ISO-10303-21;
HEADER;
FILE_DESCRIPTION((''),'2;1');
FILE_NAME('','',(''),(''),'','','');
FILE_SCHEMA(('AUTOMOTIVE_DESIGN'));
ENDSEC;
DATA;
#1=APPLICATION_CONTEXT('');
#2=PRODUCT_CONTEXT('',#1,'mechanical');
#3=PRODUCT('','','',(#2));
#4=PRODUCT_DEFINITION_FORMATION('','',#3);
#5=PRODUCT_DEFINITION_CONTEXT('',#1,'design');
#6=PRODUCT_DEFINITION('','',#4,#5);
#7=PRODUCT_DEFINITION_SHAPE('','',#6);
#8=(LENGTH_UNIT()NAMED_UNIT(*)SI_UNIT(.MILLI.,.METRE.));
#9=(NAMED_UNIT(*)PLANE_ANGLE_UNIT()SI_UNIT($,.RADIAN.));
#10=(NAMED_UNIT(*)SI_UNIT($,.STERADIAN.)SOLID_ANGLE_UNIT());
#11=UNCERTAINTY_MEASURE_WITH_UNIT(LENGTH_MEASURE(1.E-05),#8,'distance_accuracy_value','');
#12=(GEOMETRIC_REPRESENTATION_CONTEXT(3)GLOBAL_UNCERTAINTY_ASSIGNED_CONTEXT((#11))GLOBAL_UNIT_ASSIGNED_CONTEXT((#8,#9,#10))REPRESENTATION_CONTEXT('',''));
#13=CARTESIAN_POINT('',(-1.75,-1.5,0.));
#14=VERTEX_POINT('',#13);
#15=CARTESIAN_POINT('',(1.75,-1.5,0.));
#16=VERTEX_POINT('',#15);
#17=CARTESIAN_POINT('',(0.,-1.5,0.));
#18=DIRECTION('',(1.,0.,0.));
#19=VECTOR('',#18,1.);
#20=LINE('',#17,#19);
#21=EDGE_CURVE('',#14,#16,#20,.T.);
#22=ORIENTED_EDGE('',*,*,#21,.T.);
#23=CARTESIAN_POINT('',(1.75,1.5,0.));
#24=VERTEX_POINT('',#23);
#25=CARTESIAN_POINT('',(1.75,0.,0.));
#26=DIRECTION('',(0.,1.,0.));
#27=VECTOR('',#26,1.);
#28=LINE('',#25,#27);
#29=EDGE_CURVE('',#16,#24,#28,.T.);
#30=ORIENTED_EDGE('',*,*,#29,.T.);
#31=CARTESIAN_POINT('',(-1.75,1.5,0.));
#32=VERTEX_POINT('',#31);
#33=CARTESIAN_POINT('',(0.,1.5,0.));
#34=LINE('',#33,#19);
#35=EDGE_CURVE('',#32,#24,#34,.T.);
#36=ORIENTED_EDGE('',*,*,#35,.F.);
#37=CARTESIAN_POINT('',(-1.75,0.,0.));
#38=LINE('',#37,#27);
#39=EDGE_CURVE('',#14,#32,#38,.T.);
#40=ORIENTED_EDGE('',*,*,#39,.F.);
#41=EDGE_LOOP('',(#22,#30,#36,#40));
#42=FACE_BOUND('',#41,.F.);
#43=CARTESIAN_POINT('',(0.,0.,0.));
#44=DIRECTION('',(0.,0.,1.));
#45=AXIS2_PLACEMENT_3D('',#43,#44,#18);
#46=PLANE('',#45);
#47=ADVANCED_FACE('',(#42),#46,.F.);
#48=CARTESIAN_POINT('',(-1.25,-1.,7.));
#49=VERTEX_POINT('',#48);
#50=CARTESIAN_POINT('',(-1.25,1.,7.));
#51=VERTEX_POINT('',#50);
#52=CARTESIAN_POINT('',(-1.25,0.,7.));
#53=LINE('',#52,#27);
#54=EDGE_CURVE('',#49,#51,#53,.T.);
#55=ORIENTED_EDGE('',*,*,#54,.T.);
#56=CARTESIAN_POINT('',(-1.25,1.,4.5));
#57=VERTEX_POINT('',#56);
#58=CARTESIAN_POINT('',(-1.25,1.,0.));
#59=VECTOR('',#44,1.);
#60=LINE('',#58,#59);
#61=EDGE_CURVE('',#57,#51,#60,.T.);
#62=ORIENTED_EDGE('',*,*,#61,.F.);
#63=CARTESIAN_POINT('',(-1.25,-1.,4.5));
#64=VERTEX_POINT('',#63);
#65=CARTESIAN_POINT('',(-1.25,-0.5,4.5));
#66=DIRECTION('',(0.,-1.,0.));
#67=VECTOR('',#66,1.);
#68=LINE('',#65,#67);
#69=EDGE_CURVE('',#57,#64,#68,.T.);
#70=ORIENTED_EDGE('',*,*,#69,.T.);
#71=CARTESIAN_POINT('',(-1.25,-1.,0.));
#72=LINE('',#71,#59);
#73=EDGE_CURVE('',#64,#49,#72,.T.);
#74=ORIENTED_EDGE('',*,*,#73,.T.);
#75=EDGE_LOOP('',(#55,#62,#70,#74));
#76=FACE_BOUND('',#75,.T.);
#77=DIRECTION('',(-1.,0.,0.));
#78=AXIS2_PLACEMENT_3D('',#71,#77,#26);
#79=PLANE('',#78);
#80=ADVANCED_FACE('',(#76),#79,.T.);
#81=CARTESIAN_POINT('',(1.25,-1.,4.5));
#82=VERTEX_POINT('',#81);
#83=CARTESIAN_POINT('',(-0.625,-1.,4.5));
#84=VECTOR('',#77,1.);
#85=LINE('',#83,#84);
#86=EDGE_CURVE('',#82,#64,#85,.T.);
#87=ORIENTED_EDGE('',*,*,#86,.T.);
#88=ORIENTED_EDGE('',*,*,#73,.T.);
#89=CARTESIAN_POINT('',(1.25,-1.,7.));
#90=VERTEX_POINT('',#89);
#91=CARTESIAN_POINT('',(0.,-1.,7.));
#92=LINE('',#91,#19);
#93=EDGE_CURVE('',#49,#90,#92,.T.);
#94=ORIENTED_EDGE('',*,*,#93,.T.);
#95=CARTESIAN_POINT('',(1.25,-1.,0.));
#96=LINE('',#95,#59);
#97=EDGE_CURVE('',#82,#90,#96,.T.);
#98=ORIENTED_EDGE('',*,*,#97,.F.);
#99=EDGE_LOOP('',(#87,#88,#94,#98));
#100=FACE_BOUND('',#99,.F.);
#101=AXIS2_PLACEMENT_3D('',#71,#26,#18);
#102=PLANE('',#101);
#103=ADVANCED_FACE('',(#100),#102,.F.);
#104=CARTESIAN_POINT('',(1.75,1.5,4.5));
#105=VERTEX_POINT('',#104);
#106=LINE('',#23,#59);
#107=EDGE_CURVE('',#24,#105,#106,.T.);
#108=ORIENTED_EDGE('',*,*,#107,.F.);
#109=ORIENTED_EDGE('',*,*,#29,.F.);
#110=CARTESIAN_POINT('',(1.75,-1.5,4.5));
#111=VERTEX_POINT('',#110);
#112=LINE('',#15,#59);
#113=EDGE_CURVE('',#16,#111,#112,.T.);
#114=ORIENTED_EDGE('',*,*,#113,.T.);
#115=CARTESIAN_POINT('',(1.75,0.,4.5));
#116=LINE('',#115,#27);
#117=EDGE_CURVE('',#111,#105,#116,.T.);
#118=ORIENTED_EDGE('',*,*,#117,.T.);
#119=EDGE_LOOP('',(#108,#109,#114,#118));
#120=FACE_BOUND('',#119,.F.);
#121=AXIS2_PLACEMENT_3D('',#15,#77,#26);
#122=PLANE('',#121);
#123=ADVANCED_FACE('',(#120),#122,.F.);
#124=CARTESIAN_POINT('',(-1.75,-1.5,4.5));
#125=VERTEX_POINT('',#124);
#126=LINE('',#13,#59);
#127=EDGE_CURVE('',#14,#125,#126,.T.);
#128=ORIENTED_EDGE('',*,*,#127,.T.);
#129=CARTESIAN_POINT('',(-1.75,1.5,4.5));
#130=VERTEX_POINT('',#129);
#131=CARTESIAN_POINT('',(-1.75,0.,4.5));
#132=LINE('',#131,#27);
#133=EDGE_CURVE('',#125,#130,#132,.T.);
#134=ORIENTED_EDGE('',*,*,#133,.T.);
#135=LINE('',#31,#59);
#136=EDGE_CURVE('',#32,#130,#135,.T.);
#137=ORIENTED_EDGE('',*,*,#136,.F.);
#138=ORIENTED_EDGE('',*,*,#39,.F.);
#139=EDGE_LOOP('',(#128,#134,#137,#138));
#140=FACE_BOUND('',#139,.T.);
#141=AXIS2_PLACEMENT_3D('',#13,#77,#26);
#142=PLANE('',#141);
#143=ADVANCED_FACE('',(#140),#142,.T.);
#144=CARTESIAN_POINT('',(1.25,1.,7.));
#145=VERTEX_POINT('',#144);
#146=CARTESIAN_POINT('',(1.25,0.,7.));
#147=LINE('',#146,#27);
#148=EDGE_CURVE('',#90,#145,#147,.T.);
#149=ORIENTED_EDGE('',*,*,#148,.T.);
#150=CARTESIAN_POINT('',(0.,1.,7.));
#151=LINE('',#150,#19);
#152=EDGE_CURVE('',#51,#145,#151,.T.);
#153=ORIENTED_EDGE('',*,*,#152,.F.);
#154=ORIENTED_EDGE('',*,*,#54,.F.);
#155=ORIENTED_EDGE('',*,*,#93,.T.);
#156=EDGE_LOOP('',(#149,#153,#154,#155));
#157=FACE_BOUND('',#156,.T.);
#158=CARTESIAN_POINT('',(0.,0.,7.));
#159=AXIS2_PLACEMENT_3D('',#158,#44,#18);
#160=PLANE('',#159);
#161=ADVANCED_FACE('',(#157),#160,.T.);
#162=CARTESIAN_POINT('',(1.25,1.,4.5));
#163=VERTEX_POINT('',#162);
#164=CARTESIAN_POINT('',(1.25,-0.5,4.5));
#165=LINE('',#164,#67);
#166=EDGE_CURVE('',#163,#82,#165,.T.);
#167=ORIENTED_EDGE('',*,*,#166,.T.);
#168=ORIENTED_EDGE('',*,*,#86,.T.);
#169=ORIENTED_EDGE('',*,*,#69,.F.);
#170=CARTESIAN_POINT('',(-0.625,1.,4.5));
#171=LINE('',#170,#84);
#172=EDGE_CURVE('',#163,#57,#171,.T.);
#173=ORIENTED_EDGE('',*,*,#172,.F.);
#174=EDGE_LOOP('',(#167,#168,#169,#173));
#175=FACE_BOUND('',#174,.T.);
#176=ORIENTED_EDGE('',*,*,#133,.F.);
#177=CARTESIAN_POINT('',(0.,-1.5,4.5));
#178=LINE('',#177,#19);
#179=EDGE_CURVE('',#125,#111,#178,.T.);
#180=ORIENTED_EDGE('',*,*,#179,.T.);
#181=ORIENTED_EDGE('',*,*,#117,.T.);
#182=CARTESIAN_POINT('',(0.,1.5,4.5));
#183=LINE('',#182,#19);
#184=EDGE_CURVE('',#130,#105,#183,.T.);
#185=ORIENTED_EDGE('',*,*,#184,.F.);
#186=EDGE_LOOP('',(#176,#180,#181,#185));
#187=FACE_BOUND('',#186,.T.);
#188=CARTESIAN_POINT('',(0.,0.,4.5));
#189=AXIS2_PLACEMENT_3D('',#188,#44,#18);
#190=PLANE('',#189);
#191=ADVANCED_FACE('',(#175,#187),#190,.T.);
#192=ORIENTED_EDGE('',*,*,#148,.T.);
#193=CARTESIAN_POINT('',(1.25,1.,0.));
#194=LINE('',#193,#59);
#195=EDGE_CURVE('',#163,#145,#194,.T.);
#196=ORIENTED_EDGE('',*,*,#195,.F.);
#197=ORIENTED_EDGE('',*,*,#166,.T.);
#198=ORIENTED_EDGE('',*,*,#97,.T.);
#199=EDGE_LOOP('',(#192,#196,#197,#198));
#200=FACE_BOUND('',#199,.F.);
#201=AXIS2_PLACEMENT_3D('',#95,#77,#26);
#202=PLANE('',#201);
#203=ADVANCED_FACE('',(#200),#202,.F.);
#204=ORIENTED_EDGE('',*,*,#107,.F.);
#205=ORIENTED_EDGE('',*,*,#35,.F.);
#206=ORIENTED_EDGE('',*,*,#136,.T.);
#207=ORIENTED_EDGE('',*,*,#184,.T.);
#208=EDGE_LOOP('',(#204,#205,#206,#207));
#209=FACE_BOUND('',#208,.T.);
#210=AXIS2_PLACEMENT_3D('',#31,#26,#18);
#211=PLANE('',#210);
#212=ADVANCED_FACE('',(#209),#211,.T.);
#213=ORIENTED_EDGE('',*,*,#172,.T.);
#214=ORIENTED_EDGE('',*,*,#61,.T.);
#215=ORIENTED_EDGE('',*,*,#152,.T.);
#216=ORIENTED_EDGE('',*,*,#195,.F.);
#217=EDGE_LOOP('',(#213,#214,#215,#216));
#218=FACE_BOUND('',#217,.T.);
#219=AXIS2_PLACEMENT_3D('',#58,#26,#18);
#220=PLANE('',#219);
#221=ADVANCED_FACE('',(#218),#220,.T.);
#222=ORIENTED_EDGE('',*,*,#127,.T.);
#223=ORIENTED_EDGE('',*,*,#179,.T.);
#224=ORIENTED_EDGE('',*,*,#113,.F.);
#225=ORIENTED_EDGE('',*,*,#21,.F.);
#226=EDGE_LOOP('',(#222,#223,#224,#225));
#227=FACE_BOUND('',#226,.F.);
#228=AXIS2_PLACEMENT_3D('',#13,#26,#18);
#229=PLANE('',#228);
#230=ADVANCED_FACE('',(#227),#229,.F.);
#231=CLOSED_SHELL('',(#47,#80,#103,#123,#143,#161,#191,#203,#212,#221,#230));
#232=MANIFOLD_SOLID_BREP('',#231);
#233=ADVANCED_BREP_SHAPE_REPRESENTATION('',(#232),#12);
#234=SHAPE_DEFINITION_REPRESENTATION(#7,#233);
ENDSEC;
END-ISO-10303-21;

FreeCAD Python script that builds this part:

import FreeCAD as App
import Part
import Sketcher

doc = App.newDocument("Part")
body = doc.addObject("PartDesign::Body", "Body")

# Sketch on XY plane
sketch1 = doc.addObject("Sketcher::SketchObject", "Sketch")
body.addObject(sketch1)
sketch1.AttachmentSupport = (doc.XY_Plane, [""])
sketch1.MapMode = "FlatFace"
sketch1.addGeometry(Part.LineSegment(App.Vector(-1.8, 1.5, 0), App.Vector(-1.8, -1.5, 0)), False)
sketch1.addGeometry(Part.LineSegment(App.Vector(-1.8, -1.5, 0), App.Vector(1.8, -1.5, 0)), False)
sketch1.addGeometry(Part.LineSegment(App.Vector(1.8, -1.5, 0), App.Vector(1.8, 1.5, 0)), False)
sketch1.addGeometry(Part.LineSegment(App.Vector(1.8, 1.5, 0), App.Vector(-1.8, 1.5, 0)), False)
sketch1.addConstraint(Sketcher.Constraint("Coincident", 0, 2, 1, 1))
sketch1.addConstraint(Sketcher.Constraint("Coincident", 1, 2, 2, 1))
sketch1.addConstraint(Sketcher.Constraint("Coincident", 2, 2, 3, 1))
sketch1.addConstraint(Sketcher.Constraint("Coincident", 3, 2, 0, 1))
sketch1.addConstraint(Sketcher.Constraint("Vertical", 0))
sketch1.addConstraint(Sketcher.Constraint("Horizontal", 1))
sketch1.addConstraint(Sketcher.Constraint("Vertical", 2))
sketch1.addConstraint(Sketcher.Constraint("Horizontal", 3))
sketch1.addConstraint(Sketcher.Constraint("Symmetric", 0, 2, 2, 2, -1, 1))
sketch1.addConstraint(Sketcher.Constraint("DistanceY", 0, 2, 0, 1, 3.0))
sketch1.addConstraint(Sketcher.Constraint("DistanceX", 1, 1, 1, 2, 3.5))
pad1 = doc.addObject("PartDesign::Pad", "Pad")
body.addObject(pad1)
pad1.Profile = sketch1
pad1.Length = 4.5

# Sketch on XY plane
sketch2 = doc.addObject("Sketcher::SketchObject", "Sketch001")
body.addObject(sketch2)
sketch2.AttachmentSupport = (doc.XY_Plane, [""])
sketch2.MapMode = "FlatFace"
sketch2.addGeometry(Part.LineSegment(App.Vector(-1.2, 1, 0), App.Vector(-1.2, -1, 0)), False)
sketch2.addGeometry(Part.LineSegment(App.Vector(-1.2, -1, 0), App.Vector(1.2, -1, 0)), False)
sketch2.addGeometry(Part.LineSegment(App.Vector(1.2, -1, 0), App.Vector(1.2, 1, 0)), False)
sketch2.addGeometry(Part.LineSegment(App.Vector(1.2, 1, 0), App.Vector(-1.2, 1, 0)), False)
sketch2.addConstraint(Sketcher.Constraint("Coincident", 0, 2, 1, 1))
sketch2.addConstraint(Sketcher.Constraint("Coincident", 1, 2, 2, 1))
sketch2.addConstraint(Sketcher.Constraint("Coincident", 2, 2, 3, 1))
sketch2.addConstraint(Sketcher.Constraint("Coincident", 3, 2, 0, 1))
sketch2.addConstraint(Sketcher.Constraint("Vertical", 0))
sketch2.addConstraint(Sketcher.Constraint("Horizontal", 1))
sketch2.addConstraint(Sketcher.Constraint("Vertical", 2))
sketch2.addConstraint(Sketcher.Constraint("Horizontal", 3))
sketch2.addConstraint(Sketcher.Constraint("Symmetric", 0, 2, 2, 2, -1, 1))
sketch2.addConstraint(Sketcher.Constraint("DistanceY", 0, 2, 0, 1, 2.0))
sketch2.addConstraint(Sketcher.Constraint("DistanceX", 1, 1, 1, 2, 2.5))
pad2 = doc.addObject("PartDesign::Pad", "Pad001")
body.addObject(pad2)
pad2.Profile = sketch2
pad2.Length = 7

doc.recompute()
